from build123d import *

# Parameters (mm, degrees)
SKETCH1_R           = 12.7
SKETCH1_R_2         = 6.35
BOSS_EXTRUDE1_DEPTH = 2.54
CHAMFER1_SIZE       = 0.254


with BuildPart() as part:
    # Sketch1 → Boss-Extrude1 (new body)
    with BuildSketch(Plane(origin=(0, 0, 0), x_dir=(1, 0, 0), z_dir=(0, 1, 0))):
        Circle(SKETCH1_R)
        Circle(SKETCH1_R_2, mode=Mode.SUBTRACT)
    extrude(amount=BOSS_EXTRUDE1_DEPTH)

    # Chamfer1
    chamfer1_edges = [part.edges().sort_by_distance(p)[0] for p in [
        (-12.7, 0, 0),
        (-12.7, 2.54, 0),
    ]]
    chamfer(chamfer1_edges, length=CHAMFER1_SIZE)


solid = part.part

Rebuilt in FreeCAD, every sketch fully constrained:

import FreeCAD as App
import Part
import Sketcher
from FreeCAD import Vector
Q = App.Units.Quantity


def edges_at(feature, points):
    """Names of the edges that pass closest to the given points."""
    edges = feature.Shape.Edges
    near = lambda p: min(range(len(edges)), key=lambda i: edges[i].distToShape(Part.Vertex(*p))[0])
    return sorted({f"Edge{near(p) + 1}" for p in points})

doc = App.newDocument("Part")
params = doc.addObject("Spreadsheet::Sheet", "Params")
for row, (alias, value) in enumerate([
    ("sketch1_diameter", "1 in"),
    ("sketch1_diameter2", "0.5 in"),
    ("pad1_length", "0.1 in"),
    ("chamfer_size", "0.01 in"),
], start=1):
    params.set(f"A{row}", alias)
    params.set(f"B{row}", "=" + value)
    params.setAlias(f"B{row}", alias)

body = doc.addObject("PartDesign::Body", "Body")

# Sketch on XZ plane
sketch1 = doc.addObject("Sketcher::SketchObject", "Sketch")
body.addObject(sketch1)
sketch1.AttachmentSupport = (doc.XZ_Plane, [""])
sketch1.MapMode = "FlatFace"
sketch1.addGeometry([
    Part.Circle(Vector(0, 0, 0), Vector(0, 0, 1), 13),
    Part.Circle(Vector(0, 0, 0), Vector(0, 0, 1), 6),
], False)
sketch1.addConstraint([
    Sketcher.Constraint("Coincident", 0, 3, -1, 1),
    Sketcher.Constraint("Coincident", 1, 3, -1, 1),
    Sketcher.Constraint("Diameter", 0, Q("1 in")),
    Sketcher.Constraint("Diameter", 1, Q("0.5 in")),
])
sketch1.setExpression("Constraints[2]", "Params.sketch1_diameter")
sketch1.setExpression("Constraints[3]", "Params.sketch1_diameter2")
pad1 = doc.addObject("PartDesign::Pad", "Pad")
body.addObject(pad1)
pad1.Profile = sketch1
pad1.setExpression("Length", "Params.pad1_length")
pad1.Reversed = True
doc.recompute()

chamfer = doc.addObject("PartDesign::Chamfer", "Chamfer")
body.addObject(chamfer)
chamfer.Base = (pad1, edges_at(pad1, [(-12.7, 0, 0), (-12.7, 2.54, 0)]))
chamfer.setExpression("Size", "Params.chamfer_size")

doc.recompute()
